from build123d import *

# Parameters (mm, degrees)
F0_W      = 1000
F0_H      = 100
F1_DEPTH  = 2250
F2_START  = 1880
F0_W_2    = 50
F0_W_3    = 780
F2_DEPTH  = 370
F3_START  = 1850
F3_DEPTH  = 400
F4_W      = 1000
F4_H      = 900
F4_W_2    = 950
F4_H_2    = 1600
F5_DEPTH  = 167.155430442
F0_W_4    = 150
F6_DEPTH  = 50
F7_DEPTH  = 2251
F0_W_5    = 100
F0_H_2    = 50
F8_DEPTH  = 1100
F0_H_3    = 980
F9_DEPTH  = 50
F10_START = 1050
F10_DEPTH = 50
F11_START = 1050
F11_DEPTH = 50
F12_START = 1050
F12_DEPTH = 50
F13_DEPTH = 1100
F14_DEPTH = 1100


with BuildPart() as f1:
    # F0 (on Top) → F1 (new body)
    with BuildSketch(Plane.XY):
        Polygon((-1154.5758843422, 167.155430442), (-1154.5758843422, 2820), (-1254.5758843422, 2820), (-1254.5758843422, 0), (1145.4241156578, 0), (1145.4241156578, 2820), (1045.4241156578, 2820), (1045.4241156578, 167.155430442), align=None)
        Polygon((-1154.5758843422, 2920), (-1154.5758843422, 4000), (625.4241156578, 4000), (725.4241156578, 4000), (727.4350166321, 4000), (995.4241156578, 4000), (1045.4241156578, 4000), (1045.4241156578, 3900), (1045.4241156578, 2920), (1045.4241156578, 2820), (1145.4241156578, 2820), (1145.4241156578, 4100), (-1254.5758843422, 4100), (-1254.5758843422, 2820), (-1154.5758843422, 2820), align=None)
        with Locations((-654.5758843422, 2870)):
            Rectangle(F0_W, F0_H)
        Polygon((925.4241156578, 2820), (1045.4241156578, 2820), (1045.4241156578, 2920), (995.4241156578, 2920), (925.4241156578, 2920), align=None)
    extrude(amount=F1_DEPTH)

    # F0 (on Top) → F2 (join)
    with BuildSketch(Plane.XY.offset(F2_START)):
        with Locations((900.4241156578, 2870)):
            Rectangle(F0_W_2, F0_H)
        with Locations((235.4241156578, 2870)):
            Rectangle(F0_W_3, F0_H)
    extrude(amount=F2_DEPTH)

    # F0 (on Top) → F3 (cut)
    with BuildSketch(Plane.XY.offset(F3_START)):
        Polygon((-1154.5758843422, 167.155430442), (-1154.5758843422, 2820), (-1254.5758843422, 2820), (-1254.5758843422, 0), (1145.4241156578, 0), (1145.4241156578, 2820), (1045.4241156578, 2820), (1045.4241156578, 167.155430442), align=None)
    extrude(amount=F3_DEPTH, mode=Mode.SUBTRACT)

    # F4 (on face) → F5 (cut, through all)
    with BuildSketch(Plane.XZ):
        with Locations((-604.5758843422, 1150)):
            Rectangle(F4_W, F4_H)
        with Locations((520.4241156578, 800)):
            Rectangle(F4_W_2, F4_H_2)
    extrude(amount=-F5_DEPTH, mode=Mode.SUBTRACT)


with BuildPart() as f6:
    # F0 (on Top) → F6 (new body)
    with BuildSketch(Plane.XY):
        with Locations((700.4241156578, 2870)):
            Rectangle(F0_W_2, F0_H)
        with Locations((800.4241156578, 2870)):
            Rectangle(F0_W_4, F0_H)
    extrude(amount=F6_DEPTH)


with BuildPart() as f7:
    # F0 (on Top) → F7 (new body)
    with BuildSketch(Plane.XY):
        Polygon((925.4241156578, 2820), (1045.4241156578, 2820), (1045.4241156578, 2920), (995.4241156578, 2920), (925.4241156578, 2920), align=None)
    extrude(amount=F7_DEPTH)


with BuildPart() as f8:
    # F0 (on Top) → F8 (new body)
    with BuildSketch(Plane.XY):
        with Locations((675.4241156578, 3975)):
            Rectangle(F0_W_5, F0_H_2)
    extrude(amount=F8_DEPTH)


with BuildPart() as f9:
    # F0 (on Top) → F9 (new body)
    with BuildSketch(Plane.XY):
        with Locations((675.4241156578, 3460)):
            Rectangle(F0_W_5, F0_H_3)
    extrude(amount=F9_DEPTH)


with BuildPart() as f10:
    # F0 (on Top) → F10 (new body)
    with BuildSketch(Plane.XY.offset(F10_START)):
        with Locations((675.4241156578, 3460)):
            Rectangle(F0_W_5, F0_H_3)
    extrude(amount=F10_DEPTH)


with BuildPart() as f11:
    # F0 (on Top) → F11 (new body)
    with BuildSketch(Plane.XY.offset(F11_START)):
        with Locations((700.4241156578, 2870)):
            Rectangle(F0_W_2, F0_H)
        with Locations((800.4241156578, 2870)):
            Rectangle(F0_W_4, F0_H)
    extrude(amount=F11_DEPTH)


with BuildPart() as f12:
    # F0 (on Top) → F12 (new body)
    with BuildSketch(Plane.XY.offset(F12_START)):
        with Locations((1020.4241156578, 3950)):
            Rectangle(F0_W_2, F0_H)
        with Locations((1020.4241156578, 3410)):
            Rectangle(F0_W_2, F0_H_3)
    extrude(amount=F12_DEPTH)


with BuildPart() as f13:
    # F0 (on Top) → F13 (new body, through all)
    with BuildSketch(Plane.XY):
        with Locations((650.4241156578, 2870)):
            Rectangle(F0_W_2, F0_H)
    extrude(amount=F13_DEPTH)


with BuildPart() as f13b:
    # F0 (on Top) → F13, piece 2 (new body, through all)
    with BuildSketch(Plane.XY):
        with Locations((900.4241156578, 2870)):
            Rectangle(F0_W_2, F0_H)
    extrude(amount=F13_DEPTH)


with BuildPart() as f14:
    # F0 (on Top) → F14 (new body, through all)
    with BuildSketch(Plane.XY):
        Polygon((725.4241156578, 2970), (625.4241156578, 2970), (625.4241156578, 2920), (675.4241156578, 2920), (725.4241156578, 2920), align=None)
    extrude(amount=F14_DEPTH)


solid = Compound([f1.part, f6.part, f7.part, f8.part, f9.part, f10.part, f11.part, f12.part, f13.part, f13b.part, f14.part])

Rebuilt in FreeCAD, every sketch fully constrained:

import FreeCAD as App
import Part
import Sketcher
from FreeCAD import Vector


def add_polygon(sketch, points):
    """Adds a closed chain of lines whose ends are joined by coincident constraints."""
    first, n = sketch.GeometryCount, len(points)
    for a, b in zip(points, points[1:] + points[:1]):
        sketch.addGeometry(Part.LineSegment(App.Vector(*a, 0), App.Vector(*b, 0)), False)
    for i in range(n):
        sketch.addConstraint(Sketcher.Constraint("Coincident", first + i, 2, first + (i + 1) % n, 1))

doc = App.newDocument("Part")
body = doc.addObject("PartDesign::Body", "Body")

sketch1 = body.newObject("Sketcher::SketchObject", "Sketch")
sketch1.AttachmentSupport = (doc.getObject("XY_Plane"), [""])
sketch1.MapMode = "FlatFace"
add_polygon(sketch1, [(-1255, 0), (1145, 0), (1145, 4100), (-1255, 4100)])
add_polygon(sketch1, [(-1155, 167), (-1155, 2820), (-155, 2820), (-155, 2920), (-1155, 2920), (-1155, 4000), (1045, 4000), (1045, 2920), (925, 2920), (925, 2820), (1045, 2820), (1045, 167)])
sketch1.addConstraint(Sketcher.Constraint("Horizontal", 0))
sketch1.addConstraint(Sketcher.Constraint("Vertical", 1))
sketch1.addConstraint(Sketcher.Constraint("Horizontal", 2))
sketch1.addConstraint(Sketcher.Constraint("Vertical", 3))
sketch1.addConstraint(Sketcher.Constraint("Vertical", 4))
sketch1.addConstraint(Sketcher.Constraint("Horizontal", 5))
sketch1.addConstraint(Sketcher.Constraint("Vertical", 6))
sketch1.addConstraint(Sketcher.Constraint("Horizontal", 7))
sketch1.addConstraint(Sketcher.Constraint("Vertical", 8))
sketch1.addConstraint(Sketcher.Constraint("Horizontal", 9))
sketch1.addConstraint(Sketcher.Constraint("Vertical", 10))
sketch1.addConstraint(Sketcher.Constraint("Horizontal", 11))
sketch1.addConstraint(Sketcher.Constraint("Vertical", 12))
sketch1.addConstraint(Sketcher.Constraint("Horizontal", 13))
sketch1.addConstraint(Sketcher.Constraint("Vertical", 14))
sketch1.addConstraint(Sketcher.Constraint("Horizontal", 15))
sketch1.addConstraint(Sketcher.Constraint("PointOnObject", 0, 2, -1))
sketch1.addConstraint(Sketcher.Constraint("Horizontal", 7, 2, 10, 2))
sketch1.addConstraint(Sketcher.Constraint("Horizontal", 5, 2, 12, 2))
sketch1.addConstraint(Sketcher.Constraint("Vertical", 4, 2, 7, 2))
sketch1.addConstraint(Sketcher.Constraint("Vertical", 10, 2, 13, 2))
sketch1.addConstraint(Sketcher.Constraint("DistanceX", 0, 1, 0, 2, 2400.0))
sketch1.addConstraint(Sketcher.Constraint("DistanceX", 5, 1, 5, 2, 1000.0))
sketch1.addConstraint(Sketcher.Constraint("DistanceX", 9, 1, 9, 2, 2200.0))
sketch1.addConstraint(Sketcher.Constraint("DistanceX", 11, 2, 11, 1, 120.0))
sketch1.addConstraint(Sketcher.Constraint("DistanceY", 1, 1, 1, 2, 4100.0))
sketch1.addConstraint(Sketcher.Constraint("DistanceY", 6, 1, 6, 2, 100.0))
sketch1.addConstraint(Sketcher.Constraint("DistanceY", 8, 1, 8, 2, 1080.0))
sketch1.addConstraint(Sketcher.Constraint("DistanceY", -1, 1, 4, 2, 2820.0))
sketch1.addConstraint(Sketcher.Constraint("DistanceX", 2, 2, 4, 2, 100.0))
sketch1.addConstraint(Sketcher.Constraint("DistanceY", 4, 1, 4, 2, 2652.84457))
sketch1.addConstraint(Sketcher.Constraint("DistanceX", -1, 1, 0, 2, 1145.424116))
pad1 = body.newObject("PartDesign::Pad", "Pad")
pad1.Profile = sketch1
pad1.Length = 2250

sketch2 = body.newObject("Sketcher::SketchObject", "Sketch001")
sketch2.AttachmentSupport = (doc.getObject("XY_Plane"), [""])
sketch2.MapMode = "FlatFace"
sketch2.AttachmentOffset = App.Placement(Vector(0, 0, 1880), App.Rotation())
add_polygon(sketch2, [(875, 2920), (875, 2820), (925, 2820), (925, 2920)])
add_polygon(sketch2, [(-155, 2920), (-155, 2820), (625, 2820), (625, 2920)])
sketch2.addConstraint(Sketcher.Constraint("Vertical", 0))
sketch2.addConstraint(Sketcher.Constraint("Horizontal", 1))
sketch2.addConstraint(Sketcher.Constraint("Vertical", 2))
sketch2.addConstraint(Sketcher.Constraint("Horizontal", 3))
sketch2.addConstraint(Sketcher.Constraint("Vertical", 4))
sketch2.addConstraint(Sketcher.Constraint("Horizontal", 5))
sketch2.addConstraint(Sketcher.Constraint("Vertical", 6))
sketch2.addConstraint(Sketcher.Constraint("Horizontal", 7))
sketch2.addConstraint(Sketcher.Constraint("Horizontal", 1, 2, 4, 2))
sketch2.addConstraint(Sketcher.Constraint("Horizontal", 3, 2, 6, 2))
sketch2.addConstraint(Sketcher.Constraint("DistanceX", 1, 1, 1, 2, 50.0))
sketch2.addConstraint(Sketcher.Constraint("DistanceX", 5, 1, 5, 2, 780.0))
sketch2.addConstraint(Sketcher.Constraint("DistanceY", 0, 2, 0, 1, 100.0))
sketch2.addConstraint(Sketcher.Constraint("DistanceY", -1, 1, 0, 2, 2820.0))
sketch2.addConstraint(Sketcher.Constraint("DistanceX", 4, 2, 0, 2, 1030.0))
sketch2.addConstraint(Sketcher.Constraint("DistanceX", -1, 1, 0, 2, 875.424116))
pad2 = body.newObject("PartDesign::Pad", "Pad001")
pad2.Profile = sketch2
pad2.Length = 370

sketch3 = body.newObject("Sketcher::SketchObject", "Sketch002")
sketch3.AttachmentSupport = (doc.getObject("XY_Plane"), [""])
sketch3.MapMode = "FlatFace"
sketch3.AttachmentOffset = App.Placement(Vector(0, 0, 1850), App.Rotation())
add_polygon(sketch3, [(-1155, 167), (-1155, 2820), (-1255, 2820), (-1255, 0), (1145, 0), (1145, 2820), (1045, 2820), (1045, 167)])
sketch3.addConstraint(Sketcher.Constraint("Vertical", 0))
sketch3.addConstraint(Sketcher.Constraint("Horizontal", 1))
sketch3.addConstraint(Sketcher.Constraint("Vertical", 2))
sketch3.addConstraint(Sketcher.Constraint("Horizontal", 3))
sketch3.addConstraint(Sketcher.Constraint("Vertical", 4))
sketch3.addConstraint(Sketcher.Constraint("Horizontal", 5))
sketch3.addConstraint(Sketcher.Constraint("Vertical", 6))
sketch3.addConstraint(Sketcher.Constraint("Horizontal", 7))
sketch3.addConstraint(Sketcher.Constraint("PointOnObject", 2, 2, -1))
sketch3.addConstraint(Sketcher.Constraint("Horizontal", 1, 2, 4, 2))
sketch3.addConstraint(Sketcher.Constraint("Equal", 1, 5))
sketch3.addConstraint(Sketcher.Constraint("DistanceX", 1, 2, 1, 1, 100.0))
sketch3.addConstraint(Sketcher.Constraint("DistanceX", 3, 1, 3, 2, 2400.0))
sketch3.addConstraint(Sketcher.Constraint("DistanceY", 2, 2, 2, 1, 2820.0))
sketch3.addConstraint(Sketcher.Constraint("DistanceY", 0, 1, 0, 2, 2652.84457))
sketch3.addConstraint(Sketcher.Constraint("DistanceX", 0, 2, -1, 1, 1154.575884))
pocket1 = body.newObject("PartDesign::Pocket", "Pocket")
pocket1.Profile = sketch3
pocket1.Length = 400
pocket1.Reversed = True

sketch4 = body.newObject("Sketcher::SketchObject", "Sketch003")
sketch4.AttachmentSupport = (doc.getObject("XZ_Plane"), [""])
sketch4.MapMode = "FlatFace"
add_polygon(sketch4, [(-1105, 1600), (-1105, 700), (-105, 700), (-105, 1600)])
add_polygon(sketch4, [(45, 1600), (45, 0), (995, 0), (995, 1600)])
sketch4.addConstraint(Sketcher.Constraint("Vertical", 0))
sketch4.addConstraint(Sketcher.Constraint("Horizontal", 1))
sketch4.addConstraint(Sketcher.Constraint("Vertical", 2))
sketch4.addConstraint(Sketcher.Constraint("Horizontal", 3))
sketch4.addConstraint(Sketcher.Constraint("Vertical", 4))
sketch4.addConstraint(Sketcher.Constraint("Horizontal", 5))
sketch4.addConstraint(Sketcher.Constraint("Vertical", 6))
sketch4.addConstraint(Sketcher.Constraint("Horizontal", 7))
sketch4.addConstraint(Sketcher.Constraint("PointOnObject", 4, 2, -1))
sketch4.addConstraint(Sketcher.Constraint("Horizontal", 3, 2, 6, 2))
sketch4.addConstraint(Sketcher.Constraint("DistanceX", 1, 1, 1, 2, 1000.0))
sketch4.addConstraint(Sketcher.Constraint("DistanceX", 5, 1, 5, 2, 950.0))
sketch4.addConstraint(Sketcher.Constraint("DistanceY", 0, 2, 0, 1, 900.0))
sketch4.addConstraint(Sketcher.Constraint("DistanceY", 4, 2, 4, 1, 1600.0))
sketch4.addConstraint(Sketcher.Constraint("DistanceX", 1, 2, 4, 2, 150.0))
sketch4.addConstraint(Sketcher.Constraint("DistanceX", 0, 2, -1, 1, 1104.575884))
pocket2 = body.newObject("PartDesign::Pocket", "Pocket001")
pocket2.Profile = sketch4
pocket2.Length = 167.15543
body2 = doc.addObject("PartDesign::Body", "Body001")

sketch5 = body2.newObject("Sketcher::SketchObject", "Sketch004")
sketch5.AttachmentSupport = (doc.getObject("XY_Plane001"), [""])
sketch5.MapMode = "FlatFace"
add_polygon(sketch5, [(675, 2920), (675, 2820), (875, 2820), (875, 2920)])
sketch5.addConstraint(Sketcher.Constraint("Vertical", 0))
sketch5.addConstraint(Sketcher.Constraint("Horizontal", 1))
sketch5.addConstraint(Sketcher.Constraint("Vertical", 2))
sketch5.addConstraint(Sketcher.Constraint("Horizontal", 3))
sketch5.addConstraint(Sketcher.Constraint("DistanceX", 1, 1, 1, 2, 200.0))
sketch5.addConstraint(Sketcher.Constraint("DistanceY", 0, 2, 0, 1, 100.0))
sketch5.addConstraint(Sketcher.Constraint("DistanceY", -1, 1, 0, 2, 2820.0))
sketch5.addConstraint(Sketcher.Constraint("DistanceX", -1, 1, 0, 2, 675.424116))
pad3 = body2.newObject("PartDesign::Pad", "Pad002")
pad3.Profile = sketch5
pad3.Length = 50
body3 = doc.addObject("PartDesign::Body", "Body002")

sketch6 = body3.newObject("Sketcher::SketchObject", "Sketch005")
sketch6.AttachmentSupport = (doc.getObject("XY_Plane002"), [""])
sketch6.MapMode = "FlatFace"
add_polygon(sketch6, [(925, 2820), (1045, 2820), (1045, 2920), (925, 2920)])
sketch6.addConstraint(Sketcher.Constraint("Horizontal", 0))
sketch6.addConstraint(Sketcher.Constraint("Vertical", 1))
sketch6.addConstraint(Sketcher.Constraint("Horizontal", 2))
sketch6.addConstraint(Sketcher.Constraint("Vertical", 3))
sketch6.addConstraint(Sketcher.Constraint("DistanceX", 0, 1, 0, 2, 120.0))
sketch6.addConstraint(Sketcher.Constraint("DistanceY", 1, 1, 1, 2, 100.0))
sketch6.addConstraint(Sketcher.Constraint("DistanceY", -1, 1, 0, 2, 2820.0))
sketch6.addConstraint(Sketcher.Constraint("DistanceX", -1, 1, 0, 2, 1045.424116))
pad4 = body3.newObject("PartDesign::Pad", "Pad003")
pad4.Profile = sketch6
pad4.Length = 2251
body4 = doc.addObject("PartDesign::Body", "Body003")

sketch7 = body4.newObject("Sketcher::SketchObject", "Sketch006")
sketch7.AttachmentSupport = (doc.getObject("XY_Plane003"), [""])
sketch7.MapMode = "FlatFace"
add_polygon(sketch7, [(625, 4000), (625, 3950), (725, 3950), (725, 4000)])
sketch7.addConstraint(Sketcher.Constraint("Vertical", 0))
sketch7.addConstraint(Sketcher.Constraint("Horizontal", 1))
sketch7.addConstraint(Sketcher.Constraint("Vertical", 2))
sketch7.addConstraint(Sketcher.Constraint("Horizontal", 3))
sketch7.addConstraint(Sketcher.Constraint("DistanceX", 1, 1, 1, 2, 100.0))
sketch7.addConstraint(Sketcher.Constraint("DistanceY", 0, 2, 0, 1, 50.0))
sketch7.addConstraint(Sketcher.Constraint("DistanceY", -1, 1, 0, 2, 3950.0))
sketch7.addConstraint(Sketcher.Constraint("DistanceX", -1, 1, 0, 2, 625.424116))
pad5 = body4.newObject("PartDesign::Pad", "Pad004")
pad5.Profile = sketch7
pad5.Length = 1100
body5 = doc.addObject("PartDesign::Body", "Body004")

sketch8 = body5.newObject("Sketcher::SketchObject", "Sketch007")
sketch8.AttachmentSupport = (doc.getObject("XY_Plane004"), [""])
sketch8.MapMode = "FlatFace"
add_polygon(sketch8, [(625, 3950), (625, 2970), (725, 2970), (725, 3950)])
sketch8.addConstraint(Sketcher.Constraint("Vertical", 0))
sketch8.addConstraint(Sketcher.Constraint("Horizontal", 1))
sketch8.addConstraint(Sketcher.Constraint("Vertical", 2))
sketch8.addConstraint(Sketcher.Constraint("Horizontal", 3))
sketch8.addConstraint(Sketcher.Constraint("DistanceX", 1, 1, 1, 2, 100.0))
sketch8.addConstraint(Sketcher.Constraint("DistanceY", 0, 2, 0, 1, 980.0))
sketch8.addConstraint(Sketcher.Constraint("DistanceY", -1, 1, 0, 2, 2970.0))
sketch8.addConstraint(Sketcher.Constraint("DistanceX", -1, 1, 0, 2, 625.424116))
pad6 = body5.newObject("PartDesign::Pad", "Pad005")
pad6.Profile = sketch8
pad6.Length = 50
body6 = doc.addObject("PartDesign::Body", "Body005")

sketch9 = body6.newObject("Sketcher::SketchObject", "Sketch008")
sketch9.AttachmentSupport = (doc.getObject("XY_Plane005"), [""])
sketch9.MapMode = "FlatFace"
sketch9.AttachmentOffset = App.Placement(Vector(0, 0, 1050), App.Rotation())
add_polygon(sketch9, [(625, 3950), (625, 2970), (725, 2970), (725, 3950)])
sketch9.addConstraint(Sketcher.Constraint("Vertical", 0))
sketch9.addConstraint(Sketcher.Constraint("Horizontal", 1))
sketch9.addConstraint(Sketcher.Constraint("Vertical", 2))
sketch9.addConstraint(Sketcher.Constraint("Horizontal", 3))
sketch9.addConstraint(Sketcher.Constraint("DistanceX", 1, 1, 1, 2, 100.0))
sketch9.addConstraint(Sketcher.Constraint("DistanceY", 0, 2, 0, 1, 980.0))
sketch9.addConstraint(Sketcher.Constraint("DistanceY", -1, 1, 0, 2, 2970.0))
sketch9.addConstraint(Sketcher.Constraint("DistanceX", -1, 1, 0, 2, 625.424116))
pad7 = body6.newObject("PartDesign::Pad", "Pad006")
pad7.Profile = sketch9
pad7.Length = 50
body7 = doc.addObject("PartDesign::Body", "Body006")

sketch10 = body7.newObject("Sketcher::SketchObject", "Sketch009")
sketch10.AttachmentSupport = (doc.getObject("XY_Plane006"), [""])
sketch10.MapMode = "FlatFace"
sketch10.AttachmentOffset = App.Placement(Vector(0, 0, 1050), App.Rotation())
add_polygon(sketch10, [(675, 2920), (675, 2820), (875, 2820), (875, 2920)])
sketch10.addConstraint(Sketcher.Constraint("Vertical", 0))
sketch10.addConstraint(Sketcher.Constraint("Horizontal", 1))
sketch10.addConstraint(Sketcher.Constraint("Vertical", 2))
sketch10.addConstraint(Sketcher.Constraint("Horizontal", 3))
sketch10.addConstraint(Sketcher.Constraint("DistanceX", 1, 1, 1, 2, 200.0))
sketch10.addConstraint(Sketcher.Constraint("DistanceY", 0, 2, 0, 1, 100.0))
sketch10.addConstraint(Sketcher.Constraint("DistanceY", -1, 1, 0, 2, 2820.0))
sketch10.addConstraint(Sketcher.Constraint("DistanceX", -1, 1, 0, 2, 675.424116))
pad8 = body7.newObject("PartDesign::Pad", "Pad007")
pad8.Profile = sketch10
pad8.Length = 50
body8 = doc.addObject("PartDesign::Body", "Body007")

sketch11 = body8.newObject("Sketcher::SketchObject", "Sketch010")
sketch11.AttachmentSupport = (doc.getObject("XY_Plane007"), [""])
sketch11.MapMode = "FlatFace"
sketch11.AttachmentOffset = App.Placement(Vector(0, 0, 1050), App.Rotation())
add_polygon(sketch11, [(995, 4000), (995, 2920), (1045, 2920), (1045, 4000)])
sketch11.addConstraint(Sketcher.Constraint("Vertical", 0))
sketch11.addConstraint(Sketcher.Constraint("Horizontal", 1))
sketch11.addConstraint(Sketcher.Constraint("Vertical", 2))
sketch11.addConstraint(Sketcher.Constraint("Horizontal", 3))
sketch11.addConstraint(Sketcher.Constraint("DistanceX", 1, 1, 1, 2, 50.0))
sketch11.addConstraint(Sketcher.Constraint("DistanceY", 0, 2, 0, 1, 1080.0))
sketch11.addConstraint(Sketcher.Constraint("DistanceY", -1, 1, 0, 2, 2920.0))
sketch11.addConstraint(Sketcher.Constraint("DistanceX", -1, 1, 0, 2, 995.424116))
pad9 = body8.newObject("PartDesign::Pad", "Pad008")
pad9.Profile = sketch11
pad9.Length = 50
body9 = doc.addObject("PartDesign::Body", "Body008")

sketch12 = body9.newObject("Sketcher::SketchObject", "Sketch011")
sketch12.AttachmentSupport = (doc.getObject("XY_Plane008"), [""])
sketch12.MapMode = "FlatFace"
add_polygon(sketch12, [(625, 2920), (625, 2820), (675, 2820), (675, 2920)])
sketch12.addConstraint(Sketcher.Constraint("Vertical", 0))
sketch12.addConstraint(Sketcher.Constraint("Horizontal", 1))
sketch12.addConstraint(Sketcher.Constraint("Vertical", 2))
sketch12.addConstraint(Sketcher.Constraint("Horizontal", 3))
sketch12.addConstraint(Sketcher.Constraint("DistanceX", 1, 1, 1, 2, 50.0))
sketch12.addConstraint(Sketcher.Constraint("DistanceY", 0, 2, 0, 1, 100.0))
sketch12.addConstraint(Sketcher.Constraint("DistanceY", -1, 1, 0, 2, 2820.0))
sketch12.addConstraint(Sketcher.Constraint("DistanceX", -1, 1, 0, 2, 625.424116))
pad10 = body9.newObject("PartDesign::Pad", "Pad009")
pad10.Profile = sketch12
pad10.Length = 1100
body10 = doc.addObject("PartDesign::Body", "Body009")

sketch13 = body10.newObject("Sketcher::SketchObject", "Sketch012")
sketch13.AttachmentSupport = (doc.getObject("XY_Plane009"), [""])
sketch13.MapMode = "FlatFace"
add_polygon(sketch13, [(875, 2920), (875, 2820), (925, 2820), (925, 2920)])
sketch13.addConstraint(Sketcher.Constraint("Vertical", 0))
sketch13.addConstraint(Sketcher.Constraint("Horizontal", 1))
sketch13.addConstraint(Sketcher.Constraint("Vertical", 2))
sketch13.addConstraint(Sketcher.Constraint("Horizontal", 3))
sketch13.addConstraint(Sketcher.Constraint("DistanceX", 1, 1, 1, 2, 50.0))
sketch13.addConstraint(Sketcher.Constraint("DistanceY", 0, 2, 0, 1, 100.0))
sketch13.addConstraint(Sketcher.Constraint("DistanceY", -1, 1, 0, 2, 2820.0))
sketch13.addConstraint(Sketcher.Constraint("DistanceX", -1, 1, 0, 2, 875.424116))
pad11 = body10.newObject("PartDesign::Pad", "Pad010")
pad11.Profile = sketch13
pad11.Length = 1100
body11 = doc.addObject("PartDesign::Body", "Body010")

sketch14 = body11.newObject("Sketcher::SketchObject", "Sketch013")
sketch14.AttachmentSupport = (doc.getObject("XY_Plane010"), [""])
sketch14.MapMode = "FlatFace"
add_polygon(sketch14, [(725, 2970), (625, 2970), (625, 2920), (725, 2920)])
sketch14.addConstraint(Sketcher.Constraint("Horizontal", 0))
sketch14.addConstraint(Sketcher.Constraint("Vertical", 1))
sketch14.addConstraint(Sketcher.Constraint("Horizontal", 2))
sketch14.addConstraint(Sketcher.Constraint("Vertical", 3))
sketch14.addConstraint(Sketcher.Constraint("DistanceX", 0, 2, 0, 1, 100.0))
sketch14.addConstraint(Sketcher.Constraint("DistanceY", 1, 2, 1, 1, 50.0))
sketch14.addConstraint(Sketcher.Constraint("DistanceY", -1, 1, 0, 2, 2970.0))
sketch14.addConstraint(Sketcher.Constraint("DistanceX", -1, 1, 0, 2, 625.424116))
pad12 = body11.newObject("PartDesign::Pad", "Pad011")
pad12.Profile = sketch14
pad12.Length = 1100

doc.recompute()
